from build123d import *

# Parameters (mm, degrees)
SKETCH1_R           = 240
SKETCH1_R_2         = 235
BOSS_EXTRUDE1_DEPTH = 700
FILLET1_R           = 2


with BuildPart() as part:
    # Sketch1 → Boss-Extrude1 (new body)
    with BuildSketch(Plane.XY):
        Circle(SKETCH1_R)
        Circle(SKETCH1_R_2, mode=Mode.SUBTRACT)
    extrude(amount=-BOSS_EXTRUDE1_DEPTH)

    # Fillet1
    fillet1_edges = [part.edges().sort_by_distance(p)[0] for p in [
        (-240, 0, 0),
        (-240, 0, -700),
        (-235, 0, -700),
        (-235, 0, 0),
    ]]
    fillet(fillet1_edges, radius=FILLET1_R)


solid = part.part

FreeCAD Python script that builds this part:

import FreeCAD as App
import Part
import Sketcher


def edges_at(feature, points):
    """Names of the edges that pass closest to the given points."""
    edges = feature.Shape.Edges
    near = lambda p: min(range(len(edges)), key=lambda i: edges[i].distToShape(Part.Vertex(*p))[0])
    return sorted({f"Edge{near(p) + 1}" for p in points})

doc = App.newDocument("Part")
body = doc.addObject("PartDesign::Body", "Body")

# Sketch on XY plane
sketch1 = body.newObject("Sketcher::SketchObject", "Sketch")
sketch1.AttachmentSupport = (doc.getObject("XY_Plane"), [""])
sketch1.MapMode = "FlatFace"
sketch1.addGeometry(Part.Circle(App.Vector(0, 0, 0), App.Vector(0, 0, 1), 240), False)
sketch1.addGeometry(Part.Circle(App.Vector(0, 0, 0), App.Vector(0, 0, 1), 235), False)
sketch1.addConstraint(Sketcher.Constraint("Coincident", 0, 3, -1, 1))
sketch1.addConstraint(Sketcher.Constraint("Coincident", 1, 3, -1, 1))
sketch1.addConstraint(Sketcher.Constraint("Diameter", 0, 480.0))
sketch1.addConstraint(Sketcher.Constraint("Diameter", 1, 470.0))
pad1 = body.newObject("PartDesign::Pad", "Pad")
pad1.Profile = sketch1
pad1.Length = 700
pad1.Reversed = True
doc.recompute()

fillet = body.newObject("PartDesign::Fillet", "Fillet")
fillet.Base = (pad1, edges_at(pad1, [
    (-240, 0, 0),
    (-240, 0, -700),
    (-235, 0, -700),
    (-235, 0, 0),
]))
fillet.Radius = 2

doc.recompute()
